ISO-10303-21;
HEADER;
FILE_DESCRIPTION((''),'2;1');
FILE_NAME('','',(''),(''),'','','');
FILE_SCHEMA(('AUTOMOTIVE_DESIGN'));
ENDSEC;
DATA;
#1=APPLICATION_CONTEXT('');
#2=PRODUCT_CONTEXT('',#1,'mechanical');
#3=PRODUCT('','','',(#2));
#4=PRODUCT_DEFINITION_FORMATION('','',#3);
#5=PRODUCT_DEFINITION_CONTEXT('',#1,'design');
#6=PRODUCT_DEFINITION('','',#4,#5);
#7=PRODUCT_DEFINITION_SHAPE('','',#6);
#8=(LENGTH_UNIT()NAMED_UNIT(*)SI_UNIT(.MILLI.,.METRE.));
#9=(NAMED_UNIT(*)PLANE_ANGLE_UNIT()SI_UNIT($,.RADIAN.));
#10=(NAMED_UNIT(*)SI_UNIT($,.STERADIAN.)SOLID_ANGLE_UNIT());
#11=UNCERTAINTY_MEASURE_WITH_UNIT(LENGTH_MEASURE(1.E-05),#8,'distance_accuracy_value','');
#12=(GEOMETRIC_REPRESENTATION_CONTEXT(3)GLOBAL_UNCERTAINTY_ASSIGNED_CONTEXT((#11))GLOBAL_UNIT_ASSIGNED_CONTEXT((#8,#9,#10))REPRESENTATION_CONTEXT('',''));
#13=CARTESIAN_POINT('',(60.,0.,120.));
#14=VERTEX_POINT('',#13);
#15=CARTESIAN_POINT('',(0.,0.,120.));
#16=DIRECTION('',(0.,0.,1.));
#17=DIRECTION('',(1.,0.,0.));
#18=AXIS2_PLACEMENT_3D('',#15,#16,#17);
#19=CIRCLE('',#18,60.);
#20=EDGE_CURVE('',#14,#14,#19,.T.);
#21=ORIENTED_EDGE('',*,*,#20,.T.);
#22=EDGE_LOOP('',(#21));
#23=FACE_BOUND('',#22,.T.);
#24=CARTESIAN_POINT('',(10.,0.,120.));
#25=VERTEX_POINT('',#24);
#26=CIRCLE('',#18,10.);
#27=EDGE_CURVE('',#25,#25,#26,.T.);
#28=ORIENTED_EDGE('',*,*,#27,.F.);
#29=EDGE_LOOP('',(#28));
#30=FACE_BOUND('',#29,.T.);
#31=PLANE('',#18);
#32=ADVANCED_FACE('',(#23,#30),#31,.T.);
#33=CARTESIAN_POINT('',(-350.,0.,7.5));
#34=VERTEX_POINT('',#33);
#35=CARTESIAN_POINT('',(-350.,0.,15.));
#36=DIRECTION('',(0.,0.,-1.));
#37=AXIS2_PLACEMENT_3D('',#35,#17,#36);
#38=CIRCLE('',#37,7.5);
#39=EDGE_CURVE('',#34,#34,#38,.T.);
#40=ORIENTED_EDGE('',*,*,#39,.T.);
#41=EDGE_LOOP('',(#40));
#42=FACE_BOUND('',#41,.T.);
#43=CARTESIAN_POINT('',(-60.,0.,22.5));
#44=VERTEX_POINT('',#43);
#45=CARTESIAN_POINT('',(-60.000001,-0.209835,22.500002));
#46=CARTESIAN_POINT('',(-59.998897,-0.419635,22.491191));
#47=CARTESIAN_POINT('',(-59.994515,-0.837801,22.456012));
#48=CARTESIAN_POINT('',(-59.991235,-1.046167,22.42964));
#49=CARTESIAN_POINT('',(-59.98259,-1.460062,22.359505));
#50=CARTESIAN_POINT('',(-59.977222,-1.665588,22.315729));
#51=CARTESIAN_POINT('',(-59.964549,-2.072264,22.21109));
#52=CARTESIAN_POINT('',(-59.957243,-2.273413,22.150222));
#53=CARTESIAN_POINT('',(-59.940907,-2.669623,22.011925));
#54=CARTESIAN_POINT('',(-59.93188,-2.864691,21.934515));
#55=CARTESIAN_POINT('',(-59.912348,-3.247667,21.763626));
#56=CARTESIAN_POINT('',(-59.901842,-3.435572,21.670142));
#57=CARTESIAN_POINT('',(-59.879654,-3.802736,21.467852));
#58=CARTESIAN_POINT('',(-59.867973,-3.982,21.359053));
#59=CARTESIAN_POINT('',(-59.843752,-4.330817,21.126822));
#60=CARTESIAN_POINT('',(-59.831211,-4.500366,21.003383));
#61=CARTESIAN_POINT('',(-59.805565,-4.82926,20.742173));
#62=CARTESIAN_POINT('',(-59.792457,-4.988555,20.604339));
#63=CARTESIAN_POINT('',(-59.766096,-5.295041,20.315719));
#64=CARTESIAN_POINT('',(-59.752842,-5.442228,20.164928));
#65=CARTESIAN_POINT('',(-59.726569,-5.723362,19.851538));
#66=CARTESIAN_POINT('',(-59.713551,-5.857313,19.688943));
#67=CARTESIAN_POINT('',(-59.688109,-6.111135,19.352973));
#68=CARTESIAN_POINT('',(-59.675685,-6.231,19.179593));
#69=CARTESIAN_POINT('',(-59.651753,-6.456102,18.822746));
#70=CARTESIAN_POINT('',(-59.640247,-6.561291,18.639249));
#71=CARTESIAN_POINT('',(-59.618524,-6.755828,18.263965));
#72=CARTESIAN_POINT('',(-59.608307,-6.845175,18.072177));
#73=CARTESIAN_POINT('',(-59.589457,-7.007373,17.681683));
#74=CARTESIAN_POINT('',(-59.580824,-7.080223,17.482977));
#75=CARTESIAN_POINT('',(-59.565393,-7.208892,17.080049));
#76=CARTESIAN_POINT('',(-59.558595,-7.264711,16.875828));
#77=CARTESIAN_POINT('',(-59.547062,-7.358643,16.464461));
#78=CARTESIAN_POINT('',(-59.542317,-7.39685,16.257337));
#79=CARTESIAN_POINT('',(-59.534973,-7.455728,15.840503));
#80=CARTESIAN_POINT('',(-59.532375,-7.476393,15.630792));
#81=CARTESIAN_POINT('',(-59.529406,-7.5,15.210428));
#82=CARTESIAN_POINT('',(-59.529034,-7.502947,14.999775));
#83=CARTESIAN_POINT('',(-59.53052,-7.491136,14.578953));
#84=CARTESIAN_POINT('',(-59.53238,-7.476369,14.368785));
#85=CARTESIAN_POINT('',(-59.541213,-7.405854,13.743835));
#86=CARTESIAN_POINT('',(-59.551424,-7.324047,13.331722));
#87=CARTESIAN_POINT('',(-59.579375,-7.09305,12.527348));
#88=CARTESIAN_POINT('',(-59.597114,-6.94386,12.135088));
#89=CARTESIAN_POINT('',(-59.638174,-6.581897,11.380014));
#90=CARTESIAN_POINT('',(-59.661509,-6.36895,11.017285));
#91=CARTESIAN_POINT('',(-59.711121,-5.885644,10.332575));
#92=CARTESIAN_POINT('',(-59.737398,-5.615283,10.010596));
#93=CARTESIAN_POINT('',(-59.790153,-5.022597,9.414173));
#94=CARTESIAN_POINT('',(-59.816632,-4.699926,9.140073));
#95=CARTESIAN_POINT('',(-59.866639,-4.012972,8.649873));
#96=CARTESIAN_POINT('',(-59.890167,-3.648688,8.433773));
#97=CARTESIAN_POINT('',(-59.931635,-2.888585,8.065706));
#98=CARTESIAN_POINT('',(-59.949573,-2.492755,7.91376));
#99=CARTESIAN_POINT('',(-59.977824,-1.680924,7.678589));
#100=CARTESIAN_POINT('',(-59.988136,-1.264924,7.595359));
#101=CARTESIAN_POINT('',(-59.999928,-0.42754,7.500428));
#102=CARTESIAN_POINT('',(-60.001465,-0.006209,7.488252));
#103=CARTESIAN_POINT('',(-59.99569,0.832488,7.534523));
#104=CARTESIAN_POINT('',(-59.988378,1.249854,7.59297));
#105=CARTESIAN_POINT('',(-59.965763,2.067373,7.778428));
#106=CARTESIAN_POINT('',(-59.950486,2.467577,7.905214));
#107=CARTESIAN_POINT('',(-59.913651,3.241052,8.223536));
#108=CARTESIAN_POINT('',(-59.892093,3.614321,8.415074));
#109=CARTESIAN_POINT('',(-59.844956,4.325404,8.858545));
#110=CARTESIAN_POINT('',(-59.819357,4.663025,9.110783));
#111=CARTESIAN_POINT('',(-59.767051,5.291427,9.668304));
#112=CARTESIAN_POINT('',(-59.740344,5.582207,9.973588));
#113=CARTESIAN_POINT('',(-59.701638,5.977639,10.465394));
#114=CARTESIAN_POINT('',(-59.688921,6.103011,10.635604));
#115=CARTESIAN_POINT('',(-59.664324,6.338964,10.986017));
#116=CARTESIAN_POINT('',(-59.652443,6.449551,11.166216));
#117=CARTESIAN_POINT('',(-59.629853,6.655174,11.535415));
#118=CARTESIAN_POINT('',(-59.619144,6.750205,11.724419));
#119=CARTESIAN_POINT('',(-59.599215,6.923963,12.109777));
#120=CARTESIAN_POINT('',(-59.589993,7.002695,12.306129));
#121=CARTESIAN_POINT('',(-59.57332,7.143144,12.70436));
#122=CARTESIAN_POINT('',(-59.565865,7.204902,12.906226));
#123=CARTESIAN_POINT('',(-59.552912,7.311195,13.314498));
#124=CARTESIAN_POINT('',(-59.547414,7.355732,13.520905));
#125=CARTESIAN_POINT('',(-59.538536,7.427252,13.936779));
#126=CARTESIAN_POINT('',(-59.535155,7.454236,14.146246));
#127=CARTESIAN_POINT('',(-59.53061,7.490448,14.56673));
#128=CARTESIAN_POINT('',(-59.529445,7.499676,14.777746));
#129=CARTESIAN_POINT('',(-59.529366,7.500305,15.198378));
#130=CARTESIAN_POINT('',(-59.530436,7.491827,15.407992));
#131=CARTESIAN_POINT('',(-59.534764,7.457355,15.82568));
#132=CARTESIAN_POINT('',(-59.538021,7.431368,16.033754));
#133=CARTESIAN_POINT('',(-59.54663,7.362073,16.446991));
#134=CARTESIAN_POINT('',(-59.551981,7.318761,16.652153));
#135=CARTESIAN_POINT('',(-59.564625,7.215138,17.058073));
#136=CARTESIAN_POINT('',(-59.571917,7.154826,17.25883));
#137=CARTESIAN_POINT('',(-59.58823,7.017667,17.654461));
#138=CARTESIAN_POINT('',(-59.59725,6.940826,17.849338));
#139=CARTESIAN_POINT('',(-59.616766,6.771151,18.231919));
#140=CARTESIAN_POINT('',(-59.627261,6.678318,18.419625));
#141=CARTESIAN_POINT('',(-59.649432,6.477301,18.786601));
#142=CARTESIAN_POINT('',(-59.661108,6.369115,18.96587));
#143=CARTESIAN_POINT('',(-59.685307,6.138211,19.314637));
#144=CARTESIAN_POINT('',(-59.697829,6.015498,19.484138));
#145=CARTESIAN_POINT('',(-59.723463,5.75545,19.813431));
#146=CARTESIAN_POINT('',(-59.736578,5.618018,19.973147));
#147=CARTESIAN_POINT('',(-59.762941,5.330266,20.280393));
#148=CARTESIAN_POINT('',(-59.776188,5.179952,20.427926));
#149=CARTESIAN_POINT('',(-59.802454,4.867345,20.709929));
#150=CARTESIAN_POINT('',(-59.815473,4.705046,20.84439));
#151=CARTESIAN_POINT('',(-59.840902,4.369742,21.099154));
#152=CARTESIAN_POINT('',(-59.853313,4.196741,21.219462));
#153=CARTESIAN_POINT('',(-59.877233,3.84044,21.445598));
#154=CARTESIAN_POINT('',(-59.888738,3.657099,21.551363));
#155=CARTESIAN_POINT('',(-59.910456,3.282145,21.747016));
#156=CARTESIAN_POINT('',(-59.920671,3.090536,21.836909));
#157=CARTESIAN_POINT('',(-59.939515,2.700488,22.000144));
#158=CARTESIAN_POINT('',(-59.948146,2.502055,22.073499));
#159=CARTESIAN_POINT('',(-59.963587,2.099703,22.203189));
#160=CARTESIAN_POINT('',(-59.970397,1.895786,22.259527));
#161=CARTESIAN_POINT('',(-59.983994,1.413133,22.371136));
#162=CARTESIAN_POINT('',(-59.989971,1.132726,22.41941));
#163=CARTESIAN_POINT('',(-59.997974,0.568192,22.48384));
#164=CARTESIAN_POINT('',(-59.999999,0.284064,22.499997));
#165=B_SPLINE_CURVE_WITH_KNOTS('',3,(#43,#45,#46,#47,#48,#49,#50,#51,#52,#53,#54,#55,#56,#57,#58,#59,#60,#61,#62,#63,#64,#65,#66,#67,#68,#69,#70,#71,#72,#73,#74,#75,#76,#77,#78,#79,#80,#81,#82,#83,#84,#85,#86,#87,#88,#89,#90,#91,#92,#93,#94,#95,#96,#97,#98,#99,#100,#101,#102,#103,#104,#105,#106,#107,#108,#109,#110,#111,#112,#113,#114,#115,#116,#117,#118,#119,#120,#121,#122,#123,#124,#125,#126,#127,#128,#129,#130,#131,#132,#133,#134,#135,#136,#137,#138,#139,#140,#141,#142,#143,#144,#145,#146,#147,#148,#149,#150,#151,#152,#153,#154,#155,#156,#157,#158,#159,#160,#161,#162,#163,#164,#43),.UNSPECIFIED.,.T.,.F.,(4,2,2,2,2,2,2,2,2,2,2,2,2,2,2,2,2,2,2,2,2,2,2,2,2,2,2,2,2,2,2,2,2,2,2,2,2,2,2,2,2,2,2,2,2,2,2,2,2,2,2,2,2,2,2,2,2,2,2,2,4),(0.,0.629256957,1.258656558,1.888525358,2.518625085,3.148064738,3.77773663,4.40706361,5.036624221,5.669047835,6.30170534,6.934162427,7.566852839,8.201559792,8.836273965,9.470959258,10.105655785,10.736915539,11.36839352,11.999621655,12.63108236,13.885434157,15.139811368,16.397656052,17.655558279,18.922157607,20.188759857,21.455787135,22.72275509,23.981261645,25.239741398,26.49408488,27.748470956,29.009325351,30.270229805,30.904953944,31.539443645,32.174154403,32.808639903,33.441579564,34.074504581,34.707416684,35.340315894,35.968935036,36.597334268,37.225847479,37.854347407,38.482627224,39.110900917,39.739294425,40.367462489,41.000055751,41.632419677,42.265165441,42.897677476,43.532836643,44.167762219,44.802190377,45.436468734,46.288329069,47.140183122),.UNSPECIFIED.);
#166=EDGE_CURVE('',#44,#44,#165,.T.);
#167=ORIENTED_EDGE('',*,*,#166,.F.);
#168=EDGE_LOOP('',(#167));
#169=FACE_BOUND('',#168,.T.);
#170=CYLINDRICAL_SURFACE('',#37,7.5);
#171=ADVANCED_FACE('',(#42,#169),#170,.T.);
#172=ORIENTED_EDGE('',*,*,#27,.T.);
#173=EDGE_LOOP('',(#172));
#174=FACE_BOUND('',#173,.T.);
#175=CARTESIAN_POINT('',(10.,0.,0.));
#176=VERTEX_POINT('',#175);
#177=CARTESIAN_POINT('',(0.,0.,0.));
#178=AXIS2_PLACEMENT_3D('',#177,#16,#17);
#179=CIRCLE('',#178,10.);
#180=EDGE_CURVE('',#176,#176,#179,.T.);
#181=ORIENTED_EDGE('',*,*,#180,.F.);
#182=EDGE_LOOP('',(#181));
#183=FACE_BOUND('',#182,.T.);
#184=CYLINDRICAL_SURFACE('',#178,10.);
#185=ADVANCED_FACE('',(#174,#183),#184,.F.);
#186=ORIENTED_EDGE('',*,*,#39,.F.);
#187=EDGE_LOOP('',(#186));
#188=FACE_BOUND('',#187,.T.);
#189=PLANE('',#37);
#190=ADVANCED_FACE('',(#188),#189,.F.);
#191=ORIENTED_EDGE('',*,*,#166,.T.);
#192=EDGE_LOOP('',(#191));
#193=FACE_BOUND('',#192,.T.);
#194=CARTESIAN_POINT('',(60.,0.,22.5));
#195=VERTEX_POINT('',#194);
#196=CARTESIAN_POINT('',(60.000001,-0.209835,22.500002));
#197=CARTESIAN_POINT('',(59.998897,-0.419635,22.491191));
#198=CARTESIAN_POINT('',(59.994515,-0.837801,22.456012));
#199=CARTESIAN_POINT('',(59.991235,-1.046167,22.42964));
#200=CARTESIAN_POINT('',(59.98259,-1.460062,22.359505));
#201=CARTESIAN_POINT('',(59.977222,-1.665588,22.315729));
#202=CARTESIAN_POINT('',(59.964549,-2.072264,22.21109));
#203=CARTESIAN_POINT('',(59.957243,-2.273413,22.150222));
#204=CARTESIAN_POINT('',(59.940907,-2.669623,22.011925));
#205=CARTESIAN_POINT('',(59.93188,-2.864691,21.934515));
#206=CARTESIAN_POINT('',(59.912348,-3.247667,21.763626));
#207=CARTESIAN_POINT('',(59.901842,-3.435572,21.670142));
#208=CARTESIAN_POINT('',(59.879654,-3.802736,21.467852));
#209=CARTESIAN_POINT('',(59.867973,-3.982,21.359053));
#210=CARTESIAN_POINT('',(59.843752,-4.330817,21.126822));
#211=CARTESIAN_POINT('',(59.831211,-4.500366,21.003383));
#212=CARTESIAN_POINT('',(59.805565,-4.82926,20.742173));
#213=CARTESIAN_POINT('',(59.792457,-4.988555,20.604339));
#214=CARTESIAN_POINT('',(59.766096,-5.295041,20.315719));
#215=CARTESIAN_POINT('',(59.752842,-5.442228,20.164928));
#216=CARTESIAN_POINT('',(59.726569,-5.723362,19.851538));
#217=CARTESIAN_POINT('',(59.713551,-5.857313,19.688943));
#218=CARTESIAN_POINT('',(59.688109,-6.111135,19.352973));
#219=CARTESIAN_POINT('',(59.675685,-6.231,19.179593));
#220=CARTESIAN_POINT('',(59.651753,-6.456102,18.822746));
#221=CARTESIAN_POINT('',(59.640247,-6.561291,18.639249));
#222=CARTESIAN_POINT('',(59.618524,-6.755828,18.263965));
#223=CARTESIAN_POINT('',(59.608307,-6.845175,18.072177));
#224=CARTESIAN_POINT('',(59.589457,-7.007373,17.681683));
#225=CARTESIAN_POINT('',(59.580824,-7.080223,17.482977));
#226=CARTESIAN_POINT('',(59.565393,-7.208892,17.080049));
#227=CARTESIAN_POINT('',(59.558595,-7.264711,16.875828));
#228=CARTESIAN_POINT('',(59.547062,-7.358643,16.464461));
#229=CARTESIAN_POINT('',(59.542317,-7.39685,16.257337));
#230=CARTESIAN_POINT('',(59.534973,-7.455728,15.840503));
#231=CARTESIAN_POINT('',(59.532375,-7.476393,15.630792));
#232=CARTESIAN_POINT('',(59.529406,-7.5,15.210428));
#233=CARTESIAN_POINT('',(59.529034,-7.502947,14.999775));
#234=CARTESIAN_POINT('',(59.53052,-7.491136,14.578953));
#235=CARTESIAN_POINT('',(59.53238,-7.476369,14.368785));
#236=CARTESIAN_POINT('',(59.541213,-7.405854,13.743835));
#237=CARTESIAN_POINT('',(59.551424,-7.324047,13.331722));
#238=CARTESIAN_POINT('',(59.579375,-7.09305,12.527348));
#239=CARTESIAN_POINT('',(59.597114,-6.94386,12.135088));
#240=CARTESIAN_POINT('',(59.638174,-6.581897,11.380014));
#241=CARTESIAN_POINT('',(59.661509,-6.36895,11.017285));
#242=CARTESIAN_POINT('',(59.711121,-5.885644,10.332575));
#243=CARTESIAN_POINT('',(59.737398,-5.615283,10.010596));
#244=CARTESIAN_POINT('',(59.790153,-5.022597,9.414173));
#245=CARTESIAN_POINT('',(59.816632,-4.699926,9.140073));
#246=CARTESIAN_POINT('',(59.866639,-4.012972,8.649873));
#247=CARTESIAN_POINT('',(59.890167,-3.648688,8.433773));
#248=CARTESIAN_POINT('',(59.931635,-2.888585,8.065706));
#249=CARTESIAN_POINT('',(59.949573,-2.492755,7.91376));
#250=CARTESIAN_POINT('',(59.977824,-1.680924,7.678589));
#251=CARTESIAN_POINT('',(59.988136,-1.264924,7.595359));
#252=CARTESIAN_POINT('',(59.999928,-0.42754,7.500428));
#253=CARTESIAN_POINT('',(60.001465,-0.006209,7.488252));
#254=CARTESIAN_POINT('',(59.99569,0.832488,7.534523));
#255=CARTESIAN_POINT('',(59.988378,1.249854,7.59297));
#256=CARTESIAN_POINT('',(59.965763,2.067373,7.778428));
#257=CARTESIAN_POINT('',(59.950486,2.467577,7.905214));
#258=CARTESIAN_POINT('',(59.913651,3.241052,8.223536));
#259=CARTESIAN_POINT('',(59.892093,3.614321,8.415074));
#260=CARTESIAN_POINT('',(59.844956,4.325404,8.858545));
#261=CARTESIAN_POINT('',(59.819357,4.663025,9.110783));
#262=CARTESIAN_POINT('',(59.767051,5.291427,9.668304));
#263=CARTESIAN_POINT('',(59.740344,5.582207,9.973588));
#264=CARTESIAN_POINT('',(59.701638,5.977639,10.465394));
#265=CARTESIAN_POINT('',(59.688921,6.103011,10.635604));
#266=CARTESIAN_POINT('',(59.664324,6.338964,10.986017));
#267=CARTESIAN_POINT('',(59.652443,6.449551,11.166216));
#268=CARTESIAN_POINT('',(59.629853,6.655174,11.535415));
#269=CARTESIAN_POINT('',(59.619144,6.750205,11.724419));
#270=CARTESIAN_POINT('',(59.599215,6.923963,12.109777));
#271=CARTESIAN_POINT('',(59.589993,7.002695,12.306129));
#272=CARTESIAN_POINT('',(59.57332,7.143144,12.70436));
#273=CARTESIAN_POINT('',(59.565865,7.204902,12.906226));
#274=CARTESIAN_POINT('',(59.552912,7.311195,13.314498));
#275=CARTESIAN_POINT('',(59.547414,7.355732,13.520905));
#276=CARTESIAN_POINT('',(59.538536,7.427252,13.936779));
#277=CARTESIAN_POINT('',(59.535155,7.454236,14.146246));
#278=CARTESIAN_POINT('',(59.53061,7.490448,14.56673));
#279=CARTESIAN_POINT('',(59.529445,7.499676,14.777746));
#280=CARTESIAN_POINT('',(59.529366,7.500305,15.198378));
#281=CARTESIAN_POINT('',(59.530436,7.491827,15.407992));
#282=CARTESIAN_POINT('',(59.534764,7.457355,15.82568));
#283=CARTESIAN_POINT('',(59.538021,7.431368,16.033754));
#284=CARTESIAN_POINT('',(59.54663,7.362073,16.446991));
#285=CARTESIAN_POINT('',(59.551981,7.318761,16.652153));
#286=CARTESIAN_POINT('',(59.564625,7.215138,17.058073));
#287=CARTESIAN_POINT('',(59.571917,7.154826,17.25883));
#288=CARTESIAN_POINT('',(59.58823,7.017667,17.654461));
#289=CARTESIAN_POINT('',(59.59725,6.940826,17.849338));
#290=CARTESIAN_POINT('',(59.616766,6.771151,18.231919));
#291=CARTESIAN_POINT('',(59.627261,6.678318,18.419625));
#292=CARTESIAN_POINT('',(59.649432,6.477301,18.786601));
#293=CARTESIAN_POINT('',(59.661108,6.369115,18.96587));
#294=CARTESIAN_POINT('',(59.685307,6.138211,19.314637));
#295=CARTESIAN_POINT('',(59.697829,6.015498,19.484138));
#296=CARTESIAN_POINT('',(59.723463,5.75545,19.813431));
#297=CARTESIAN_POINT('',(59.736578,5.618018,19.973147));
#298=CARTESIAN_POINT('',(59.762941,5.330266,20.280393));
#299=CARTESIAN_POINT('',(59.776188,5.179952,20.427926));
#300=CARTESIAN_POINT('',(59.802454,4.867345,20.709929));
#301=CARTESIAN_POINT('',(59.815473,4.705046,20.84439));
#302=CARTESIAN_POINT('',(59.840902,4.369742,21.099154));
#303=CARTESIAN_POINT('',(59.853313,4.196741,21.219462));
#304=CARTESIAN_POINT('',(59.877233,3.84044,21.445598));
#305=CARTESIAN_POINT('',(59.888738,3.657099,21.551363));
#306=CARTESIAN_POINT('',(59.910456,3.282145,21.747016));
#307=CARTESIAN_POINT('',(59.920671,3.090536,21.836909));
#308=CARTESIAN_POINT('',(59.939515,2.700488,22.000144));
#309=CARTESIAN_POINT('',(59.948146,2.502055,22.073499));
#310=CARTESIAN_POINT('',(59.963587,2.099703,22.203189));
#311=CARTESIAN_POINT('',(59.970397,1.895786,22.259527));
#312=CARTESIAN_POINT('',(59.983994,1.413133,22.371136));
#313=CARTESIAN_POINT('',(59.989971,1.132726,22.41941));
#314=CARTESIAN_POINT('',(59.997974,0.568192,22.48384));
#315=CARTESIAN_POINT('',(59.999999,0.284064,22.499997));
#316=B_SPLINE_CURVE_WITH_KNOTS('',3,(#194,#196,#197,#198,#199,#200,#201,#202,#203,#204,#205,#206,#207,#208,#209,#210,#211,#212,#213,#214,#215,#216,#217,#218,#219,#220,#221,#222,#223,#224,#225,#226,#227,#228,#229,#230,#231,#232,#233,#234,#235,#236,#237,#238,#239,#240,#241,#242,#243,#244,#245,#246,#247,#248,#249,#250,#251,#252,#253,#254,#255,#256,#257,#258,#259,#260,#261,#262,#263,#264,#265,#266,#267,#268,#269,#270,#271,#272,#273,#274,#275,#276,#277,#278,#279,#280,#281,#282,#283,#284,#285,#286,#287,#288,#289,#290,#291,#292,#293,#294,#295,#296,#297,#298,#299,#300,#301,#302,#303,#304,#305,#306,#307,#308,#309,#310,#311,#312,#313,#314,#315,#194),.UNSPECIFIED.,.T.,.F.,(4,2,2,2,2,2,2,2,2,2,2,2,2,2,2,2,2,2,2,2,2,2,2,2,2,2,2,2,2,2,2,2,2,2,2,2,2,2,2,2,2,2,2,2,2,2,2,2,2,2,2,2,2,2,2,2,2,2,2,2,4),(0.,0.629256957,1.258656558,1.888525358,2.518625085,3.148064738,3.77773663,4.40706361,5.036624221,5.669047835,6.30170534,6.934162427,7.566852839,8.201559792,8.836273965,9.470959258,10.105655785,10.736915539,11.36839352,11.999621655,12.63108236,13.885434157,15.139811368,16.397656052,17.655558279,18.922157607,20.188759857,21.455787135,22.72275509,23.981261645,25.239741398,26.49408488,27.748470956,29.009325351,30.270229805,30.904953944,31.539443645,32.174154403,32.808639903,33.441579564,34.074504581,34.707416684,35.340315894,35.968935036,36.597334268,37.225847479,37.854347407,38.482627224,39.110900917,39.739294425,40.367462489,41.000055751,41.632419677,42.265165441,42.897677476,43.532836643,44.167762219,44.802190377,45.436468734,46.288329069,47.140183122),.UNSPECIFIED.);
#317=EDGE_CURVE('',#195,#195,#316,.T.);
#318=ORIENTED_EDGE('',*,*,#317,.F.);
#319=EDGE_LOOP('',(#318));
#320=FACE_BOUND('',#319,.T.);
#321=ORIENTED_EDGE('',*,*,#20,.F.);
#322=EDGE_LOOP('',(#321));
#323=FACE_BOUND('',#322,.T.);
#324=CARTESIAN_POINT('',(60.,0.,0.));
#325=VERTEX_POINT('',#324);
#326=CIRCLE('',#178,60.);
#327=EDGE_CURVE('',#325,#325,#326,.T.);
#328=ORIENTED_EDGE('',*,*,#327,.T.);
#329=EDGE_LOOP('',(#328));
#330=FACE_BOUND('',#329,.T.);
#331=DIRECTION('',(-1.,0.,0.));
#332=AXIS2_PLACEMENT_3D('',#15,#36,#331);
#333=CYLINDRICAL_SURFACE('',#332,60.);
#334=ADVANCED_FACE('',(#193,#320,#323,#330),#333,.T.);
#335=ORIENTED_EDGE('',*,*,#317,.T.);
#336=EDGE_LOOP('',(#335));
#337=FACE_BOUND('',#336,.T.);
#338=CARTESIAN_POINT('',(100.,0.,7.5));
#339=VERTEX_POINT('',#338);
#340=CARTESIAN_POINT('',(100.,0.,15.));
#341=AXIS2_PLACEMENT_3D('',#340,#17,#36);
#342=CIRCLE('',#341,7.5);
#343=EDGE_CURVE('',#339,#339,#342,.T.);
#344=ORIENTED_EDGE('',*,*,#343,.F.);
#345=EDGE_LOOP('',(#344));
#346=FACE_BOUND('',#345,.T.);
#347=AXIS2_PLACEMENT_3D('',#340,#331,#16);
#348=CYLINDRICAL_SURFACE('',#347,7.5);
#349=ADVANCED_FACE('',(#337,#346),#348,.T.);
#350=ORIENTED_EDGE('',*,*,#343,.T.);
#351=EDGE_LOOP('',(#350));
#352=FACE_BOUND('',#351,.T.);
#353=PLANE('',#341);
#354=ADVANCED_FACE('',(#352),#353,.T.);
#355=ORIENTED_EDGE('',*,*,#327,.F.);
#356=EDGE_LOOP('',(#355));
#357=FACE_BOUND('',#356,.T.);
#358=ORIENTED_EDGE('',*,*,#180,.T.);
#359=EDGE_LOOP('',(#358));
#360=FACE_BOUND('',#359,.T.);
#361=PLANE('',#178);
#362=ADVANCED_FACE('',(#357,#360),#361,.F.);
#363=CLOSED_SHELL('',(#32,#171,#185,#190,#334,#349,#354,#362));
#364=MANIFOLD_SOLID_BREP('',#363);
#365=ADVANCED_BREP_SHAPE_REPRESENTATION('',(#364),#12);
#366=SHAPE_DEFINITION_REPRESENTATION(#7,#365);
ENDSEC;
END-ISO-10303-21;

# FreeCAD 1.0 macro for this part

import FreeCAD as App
import Part
import Sketcher
Q = App.Units.Quantity

doc = App.newDocument("Part")
body = doc.addObject("PartDesign::Body", "Body")

# Sketch on XY plane
sketch1 = body.newObject("Sketcher::SketchObject", "Sketch")
sketch1.AttachmentSupport = (doc.getObject("XY_Plane"), [""])
sketch1.MapMode = "FlatFace"
sketch1.addGeometry(Part.Circle(App.Vector(0, 0, 0), App.Vector(0, 0, 1), 60), False)
sketch1.addConstraint([
    Sketcher.Constraint("Coincident", 0, 3, -1, 1),
    Sketcher.Constraint("Diameter", 0, Q("120 mm")),
])
pad1 = body.newObject("PartDesign::Pad", "Pad")
pad1.Profile = sketch1
pad1.Length = 120

# Sketch on YZ plane
sketch2 = body.newObject("Sketcher::SketchObject", "Sketch001")
sketch2.AttachmentSupport = (doc.getObject("YZ_Plane"), [""])
sketch2.MapMode = "FlatFace"
sketch2.addGeometry(Part.Circle(App.Vector(0, 15, 0), App.Vector(0, 0, 1), 8), False)
sketch2.addConstraint([
    Sketcher.Constraint("PointOnObject", 0, 3, -2),
    Sketcher.Constraint("Diameter", 0, Q("15 mm")),
    Sketcher.Constraint("DistanceY", -1, 1, 0, 3, Q("15 mm")),
])
pad2 = body.newObject("PartDesign::Pad", "Pad001")
pad2.Profile = sketch2
pad2.Length = 350
pad2.Reversed = True

# Sketch on XY plane
sketch3 = body.newObject("Sketcher::SketchObject", "Sketch002")
sketch3.AttachmentSupport = (doc.getObject("XY_Plane"), [""])
sketch3.MapMode = "FlatFace"
sketch3.AttachmentOffset = App.Placement(App.Vector(0, 0, 120), App.Rotation())
sketch3.addGeometry(Part.Circle(App.Vector(0, 0, 0), App.Vector(0, 0, 1), 10), False)
sketch3.addConstraint([
    Sketcher.Constraint("Coincident", 0, 3, -1, 1),
    Sketcher.Constraint("Diameter", 0, Q("20 mm")),
])
pocket1 = body.newObject("PartDesign::Pocket", "Pocket")
pocket1.Profile = sketch3
pocket1.Type = "ThroughAll"

# Sketch on YZ plane
sketch4 = body.newObject("Sketcher::SketchObject", "Sketch003")
sketch4.AttachmentSupport = (doc.getObject("YZ_Plane"), [""])
sketch4.MapMode = "FlatFace"
sketch4.AttachmentOffset = App.Placement(App.Vector(0, 0, 100), App.Rotation())
sketch4.addGeometry(Part.Circle(App.Vector(0, 15, 0), App.Vector(0, 0, 1), 8), False)
sketch4.addConstraint([
    Sketcher.Constraint("PointOnObject", 0, 3, -2),
    Sketcher.Constraint("Diameter", 0, Q("15 mm")),
    Sketcher.Constraint("DistanceY", -1, 1, 0, 3, Q("15 mm")),
])
pad3 = body.newObject("PartDesign::Pad", "Pad002")
pad3.Profile = sketch4
pad3.Length = 70
pad3.Reversed = True

doc.recompute()
